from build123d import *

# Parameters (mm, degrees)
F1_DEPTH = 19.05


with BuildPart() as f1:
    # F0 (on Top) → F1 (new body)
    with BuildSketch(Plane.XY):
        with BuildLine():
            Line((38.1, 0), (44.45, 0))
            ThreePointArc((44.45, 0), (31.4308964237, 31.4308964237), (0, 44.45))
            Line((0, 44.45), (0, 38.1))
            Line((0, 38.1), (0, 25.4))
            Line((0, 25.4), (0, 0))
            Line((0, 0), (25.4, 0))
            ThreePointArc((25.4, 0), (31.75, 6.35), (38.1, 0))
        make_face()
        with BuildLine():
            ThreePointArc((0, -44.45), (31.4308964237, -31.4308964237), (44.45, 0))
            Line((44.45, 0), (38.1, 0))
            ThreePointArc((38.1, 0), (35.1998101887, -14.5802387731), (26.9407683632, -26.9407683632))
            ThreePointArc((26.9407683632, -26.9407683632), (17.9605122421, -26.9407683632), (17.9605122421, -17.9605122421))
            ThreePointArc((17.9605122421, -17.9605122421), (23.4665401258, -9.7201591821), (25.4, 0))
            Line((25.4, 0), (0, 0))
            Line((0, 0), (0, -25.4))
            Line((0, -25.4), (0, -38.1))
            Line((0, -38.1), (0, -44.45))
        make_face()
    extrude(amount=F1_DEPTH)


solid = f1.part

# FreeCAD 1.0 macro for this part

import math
import FreeCAD as App
import Part
import Sketcher
Q = App.Units.Quantity

doc = App.newDocument("Part")
params = doc.addObject("Spreadsheet::Sheet", "Params")
for row, (alias, value) in enumerate([
    ("sketch1_radius", "1 in"),
    ("sketch1_radius2", "1.5 in"),
    ("sketch1_radius3", "1.75 in"),
    ("pad1_length", "0.75 in"),
], start=1):
    params.set(f"A{row}", alias)
    params.set(f"B{row}", "=" + value)
    params.setAlias(f"B{row}", alias)

body = doc.addObject("PartDesign::Body", "Body")

# Sketch on XY plane
sketch1 = doc.addObject("Sketcher::SketchObject", "Sketch")
body.addObject(sketch1)
sketch1.AttachmentSupport = (doc.XY_Plane, [""])
sketch1.MapMode = "FlatFace"
sketch1.addGeometry([
    Part.ArcOfCircle(Part.Circle(App.Vector(0, 0, 0), App.Vector(0, 0, 1), 44.45), math.radians(0), math.radians(90)),  # 0
    Part.LineSegment(App.Vector(0, 44.45, 0), App.Vector(0, -44.45, 0)),  # 1
    Part.ArcOfCircle(Part.Circle(App.Vector(0, 0, 0), App.Vector(0, 0, 1), 44.45), math.radians(-90), math.radians(0)),  # 2
    Part.ArcOfCircle(Part.Circle(App.Vector(31.75, 0, 0), App.Vector(0, 0, 1), 6.35), math.radians(0), math.radians(180)),  # 3
    Part.ArcOfCircle(Part.Circle(App.Vector(0, 0, 0), App.Vector(0, 0, 1), 38.1), math.radians(-45), math.radians(0)),  # 4
    Part.ArcOfCircle(Part.Circle(App.Vector(22.45064, -22.45064, 0), App.Vector(0, 0, 1), 6.35), math.radians(135), math.radians(315)),  # 5
    Part.ArcOfCircle(Part.Circle(App.Vector(0, 0, 0), App.Vector(0, 0, 1), 25.4), math.radians(-45), math.radians(0)),  # 6
], False)
sketch1.addConstraint([
    Sketcher.Constraint("Coincident", 0, 2, 1, 1),
    Sketcher.Constraint("Coincident", 1, 2, 2, 1),
    Sketcher.Constraint("Tangent", 2, 2, 0, 1),
    Sketcher.Constraint("Tangent", 3, 1, 4, 2),
    Sketcher.Constraint("Tangent", 4, 1, 5, 2),
    Sketcher.Constraint("Tangent", 5, 1, 6, 1),
    Sketcher.Constraint("Tangent", 6, 2, 3, 2),
    Sketcher.Constraint("Vertical", 1),
    Sketcher.Constraint("Coincident", 0, 3, -1, 1),
    Sketcher.Constraint("Coincident", 4, 3, -1, 1),
    Sketcher.Constraint("Coincident", 6, 3, -1, 1),
    Sketcher.Constraint("Equal", 0, 2),
    Sketcher.Constraint("PointOnObject", 3, 3, -1),
    Sketcher.Constraint("PointOnObject", 0, 2, -2),
    Sketcher.Constraint("PointOnObject", 2, 2, -1),
    Sketcher.Constraint("Radius", 6, Q("1 in")),
    Sketcher.Constraint("Radius", 4, Q("1.5 in")),
    Sketcher.Constraint("Radius", 0, Q("1.75 in")),
    Sketcher.Constraint("DistanceX", -1, 1, 5, 3, 22.45064),
])
sketch1.setExpression("Constraints[15]", "Params.sketch1_radius")
sketch1.setExpression("Constraints[16]", "Params.sketch1_radius2")
sketch1.setExpression("Constraints[17]", "Params.sketch1_radius3")
pad1 = doc.addObject("PartDesign::Pad", "Pad")
body.addObject(pad1)
pad1.Profile = sketch1
pad1.setExpression("Length", "Params.pad1_length")

doc.recompute()
